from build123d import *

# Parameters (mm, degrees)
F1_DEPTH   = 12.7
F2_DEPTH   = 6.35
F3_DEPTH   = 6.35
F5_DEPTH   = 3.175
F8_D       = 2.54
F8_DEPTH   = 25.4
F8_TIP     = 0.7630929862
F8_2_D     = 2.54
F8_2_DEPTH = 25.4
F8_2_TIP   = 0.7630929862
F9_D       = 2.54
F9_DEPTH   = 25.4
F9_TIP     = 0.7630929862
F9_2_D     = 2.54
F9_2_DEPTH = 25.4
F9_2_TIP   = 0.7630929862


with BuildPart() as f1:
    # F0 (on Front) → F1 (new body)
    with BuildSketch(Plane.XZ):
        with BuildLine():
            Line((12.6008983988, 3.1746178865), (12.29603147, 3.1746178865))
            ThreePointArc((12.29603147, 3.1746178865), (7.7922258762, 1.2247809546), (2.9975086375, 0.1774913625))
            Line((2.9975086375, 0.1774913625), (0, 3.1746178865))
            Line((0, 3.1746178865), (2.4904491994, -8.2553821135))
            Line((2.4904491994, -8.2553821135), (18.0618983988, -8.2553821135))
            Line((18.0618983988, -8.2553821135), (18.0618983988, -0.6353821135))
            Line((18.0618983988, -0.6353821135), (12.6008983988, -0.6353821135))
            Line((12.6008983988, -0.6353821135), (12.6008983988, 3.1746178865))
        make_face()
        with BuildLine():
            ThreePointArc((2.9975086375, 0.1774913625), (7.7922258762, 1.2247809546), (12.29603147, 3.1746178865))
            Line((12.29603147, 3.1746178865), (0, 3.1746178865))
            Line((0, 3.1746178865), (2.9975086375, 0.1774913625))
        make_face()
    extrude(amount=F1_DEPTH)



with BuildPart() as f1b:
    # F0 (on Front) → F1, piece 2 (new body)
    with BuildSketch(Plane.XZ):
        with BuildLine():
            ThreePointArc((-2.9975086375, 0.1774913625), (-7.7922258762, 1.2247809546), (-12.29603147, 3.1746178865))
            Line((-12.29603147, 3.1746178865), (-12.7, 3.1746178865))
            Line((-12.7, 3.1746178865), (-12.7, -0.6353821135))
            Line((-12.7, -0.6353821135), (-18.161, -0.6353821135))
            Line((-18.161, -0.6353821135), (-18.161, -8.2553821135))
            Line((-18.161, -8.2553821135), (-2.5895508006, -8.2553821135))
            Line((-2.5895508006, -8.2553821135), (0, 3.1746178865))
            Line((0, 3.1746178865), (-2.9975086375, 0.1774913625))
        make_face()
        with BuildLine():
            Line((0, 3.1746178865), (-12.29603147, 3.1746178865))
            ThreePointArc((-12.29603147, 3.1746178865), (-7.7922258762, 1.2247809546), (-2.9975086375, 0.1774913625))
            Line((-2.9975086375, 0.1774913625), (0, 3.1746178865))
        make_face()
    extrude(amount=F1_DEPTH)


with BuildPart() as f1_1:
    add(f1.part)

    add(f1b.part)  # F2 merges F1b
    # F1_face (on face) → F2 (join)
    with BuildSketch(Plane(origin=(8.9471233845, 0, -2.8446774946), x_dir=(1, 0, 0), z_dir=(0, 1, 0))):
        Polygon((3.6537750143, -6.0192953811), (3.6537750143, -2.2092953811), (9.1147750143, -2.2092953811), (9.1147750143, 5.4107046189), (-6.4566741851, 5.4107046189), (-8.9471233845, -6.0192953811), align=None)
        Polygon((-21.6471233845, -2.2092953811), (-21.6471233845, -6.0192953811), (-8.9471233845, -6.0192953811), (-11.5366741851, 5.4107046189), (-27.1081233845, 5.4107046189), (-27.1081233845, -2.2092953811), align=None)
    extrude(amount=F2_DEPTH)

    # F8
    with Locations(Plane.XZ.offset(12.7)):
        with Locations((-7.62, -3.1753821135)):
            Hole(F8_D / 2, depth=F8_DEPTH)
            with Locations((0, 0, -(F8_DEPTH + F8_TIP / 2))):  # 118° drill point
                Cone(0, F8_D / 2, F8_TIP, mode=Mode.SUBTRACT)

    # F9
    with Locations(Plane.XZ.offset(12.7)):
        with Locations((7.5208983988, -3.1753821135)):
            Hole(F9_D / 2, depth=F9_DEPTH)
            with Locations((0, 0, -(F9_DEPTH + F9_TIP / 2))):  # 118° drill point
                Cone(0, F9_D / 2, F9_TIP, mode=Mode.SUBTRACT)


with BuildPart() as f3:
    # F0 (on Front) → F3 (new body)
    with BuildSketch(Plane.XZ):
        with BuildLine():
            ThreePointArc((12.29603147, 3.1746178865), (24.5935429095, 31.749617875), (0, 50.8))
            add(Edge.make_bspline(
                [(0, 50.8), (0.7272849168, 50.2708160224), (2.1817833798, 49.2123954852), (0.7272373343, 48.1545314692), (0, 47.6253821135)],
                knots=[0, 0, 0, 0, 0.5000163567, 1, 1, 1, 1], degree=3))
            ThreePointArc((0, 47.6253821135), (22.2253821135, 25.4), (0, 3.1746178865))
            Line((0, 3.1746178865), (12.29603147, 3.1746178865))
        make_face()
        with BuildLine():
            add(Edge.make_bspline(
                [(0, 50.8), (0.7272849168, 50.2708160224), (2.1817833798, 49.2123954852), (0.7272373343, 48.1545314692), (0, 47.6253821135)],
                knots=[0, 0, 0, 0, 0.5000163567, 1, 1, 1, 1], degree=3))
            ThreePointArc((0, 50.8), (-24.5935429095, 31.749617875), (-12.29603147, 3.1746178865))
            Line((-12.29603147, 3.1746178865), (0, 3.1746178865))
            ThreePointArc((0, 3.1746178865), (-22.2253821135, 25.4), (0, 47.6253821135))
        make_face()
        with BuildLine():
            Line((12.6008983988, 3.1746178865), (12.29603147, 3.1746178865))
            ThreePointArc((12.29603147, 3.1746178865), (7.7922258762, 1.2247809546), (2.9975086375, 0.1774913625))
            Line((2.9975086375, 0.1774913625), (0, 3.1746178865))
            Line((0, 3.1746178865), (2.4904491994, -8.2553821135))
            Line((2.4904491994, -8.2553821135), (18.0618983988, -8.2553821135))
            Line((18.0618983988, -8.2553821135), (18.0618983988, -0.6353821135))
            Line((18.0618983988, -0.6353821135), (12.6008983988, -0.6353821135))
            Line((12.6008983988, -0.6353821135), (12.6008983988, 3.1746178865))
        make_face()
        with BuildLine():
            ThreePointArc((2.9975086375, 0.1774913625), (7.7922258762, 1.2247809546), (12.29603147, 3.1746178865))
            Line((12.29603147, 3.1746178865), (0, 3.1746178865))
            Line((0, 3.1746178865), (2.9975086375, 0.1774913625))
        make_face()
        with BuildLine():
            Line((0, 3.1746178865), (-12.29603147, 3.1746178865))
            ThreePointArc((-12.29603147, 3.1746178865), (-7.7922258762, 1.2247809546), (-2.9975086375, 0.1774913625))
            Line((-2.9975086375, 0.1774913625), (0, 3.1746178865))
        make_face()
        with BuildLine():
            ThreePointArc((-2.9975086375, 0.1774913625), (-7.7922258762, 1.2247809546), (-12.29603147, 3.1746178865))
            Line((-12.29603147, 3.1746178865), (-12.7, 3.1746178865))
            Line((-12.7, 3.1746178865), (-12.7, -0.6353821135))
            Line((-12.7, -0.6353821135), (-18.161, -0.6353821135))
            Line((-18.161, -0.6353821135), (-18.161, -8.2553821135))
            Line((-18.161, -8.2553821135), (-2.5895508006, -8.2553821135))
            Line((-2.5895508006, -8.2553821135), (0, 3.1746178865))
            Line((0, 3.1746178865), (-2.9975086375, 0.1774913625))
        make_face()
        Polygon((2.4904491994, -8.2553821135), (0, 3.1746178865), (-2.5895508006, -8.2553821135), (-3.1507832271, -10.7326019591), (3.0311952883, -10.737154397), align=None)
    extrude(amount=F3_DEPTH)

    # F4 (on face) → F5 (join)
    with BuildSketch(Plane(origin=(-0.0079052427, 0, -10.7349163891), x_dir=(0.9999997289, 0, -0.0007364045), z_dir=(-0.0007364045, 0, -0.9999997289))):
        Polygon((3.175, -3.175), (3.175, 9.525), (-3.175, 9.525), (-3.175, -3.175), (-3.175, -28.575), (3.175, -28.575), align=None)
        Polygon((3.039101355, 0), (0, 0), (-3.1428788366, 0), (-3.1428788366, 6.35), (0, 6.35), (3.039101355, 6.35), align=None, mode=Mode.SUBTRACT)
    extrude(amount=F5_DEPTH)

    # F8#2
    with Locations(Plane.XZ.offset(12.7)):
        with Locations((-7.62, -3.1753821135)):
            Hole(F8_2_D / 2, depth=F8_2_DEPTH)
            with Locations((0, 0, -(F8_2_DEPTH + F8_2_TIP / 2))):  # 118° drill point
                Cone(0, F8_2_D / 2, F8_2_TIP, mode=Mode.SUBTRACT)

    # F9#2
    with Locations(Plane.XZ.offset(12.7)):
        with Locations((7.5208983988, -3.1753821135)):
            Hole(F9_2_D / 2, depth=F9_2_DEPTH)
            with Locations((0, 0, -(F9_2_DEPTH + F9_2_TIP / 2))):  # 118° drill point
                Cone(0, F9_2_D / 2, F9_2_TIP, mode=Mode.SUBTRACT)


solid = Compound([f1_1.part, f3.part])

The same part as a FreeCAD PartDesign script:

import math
import FreeCAD as App
import Part
import Sketcher
Q = App.Units.Quantity

doc = App.newDocument("Part")
params = doc.addObject("Spreadsheet::Sheet", "Params")
for row, (alias, value) in enumerate([
    ("sketch1_height", "0.3 in"),
    ("sketch1_height2", "0.15 in"),
    ("sketch1_width", "0.215 in"),
    ("pad1_length", "0.5 in"),
    ("sketch2_width", "0.5 in"),
    ("sketch2_height", "0.3 in"),
    ("sketch2_height2", "0.15 in"),
    ("sketch2_width2", "0.215 in"),
    ("pad2_length", "0.5 in"),
    ("sketch3_width", "0.5 in"),
    ("sketch3_height", "0.3 in"),
    ("sketch3_height2", "0.15 in"),
    ("sketch3_width2", "0.215 in"),
    ("pad3_length", "0.25 in"),
    ("sketch4_diameter", "0.1 in"),
    ("hole_diameter", "0.1 in"),
    ("hole_depth", "1 in"),
    ("sketch5_diameter", "0.1 in"),
    ("hole2_diameter", "0.1 in"),
    ("hole2_depth", "1 in"),
    ("sketch6_radius", "1 in"),
    ("sketch6_height", "0.3 in"),
    ("sketch6_length", "0.1 in"),
    ("sketch6_height2", "0.15 in"),
    ("sketch6_width", "0.215 in"),
    ("pad4_length", "0.25 in"),
    ("sketch7_height", "1.5 in"),
    ("sketch7_width", "0.25 in"),
    ("pad5_length", "0.125 in"),
    ("sketch8_diameter", "0.1 in"),
    ("hole3_diameter", "0.1 in"),
    ("hole3_depth", "1 in"),
    ("sketch9_diameter", "0.1 in"),
    ("hole4_diameter", "0.1 in"),
    ("hole4_depth", "1 in"),
], start=1):
    params.set(f"A{row}", alias)
    params.set(f"B{row}", "=" + value)
    params.setAlias(f"B{row}", alias)

body = doc.addObject("PartDesign::Body", "Body")

# Sketch on XZ plane
sketch1 = doc.addObject("Sketcher::SketchObject", "Sketch")
body.addObject(sketch1)
sketch1.AttachmentSupport = (doc.XZ_Plane, [""])
sketch1.MapMode = "FlatFace"
sketch1.addGeometry([
    Part.LineSegment(App.Vector(12.6, 3.2, 0), App.Vector(0, 3.2, 0)),  # 0
    Part.LineSegment(App.Vector(0, 3.2, 0), App.Vector(2.5, -8.3, 0)),  # 1
    Part.LineSegment(App.Vector(2.5, -8.3, 0), App.Vector(18.1, -8.3, 0)),  # 2
    Part.LineSegment(App.Vector(18.1, -8.3, 0), App.Vector(18.1, -0.6, 0)),  # 3
    Part.LineSegment(App.Vector(18.1, -0.6, 0), App.Vector(12.6, -0.6, 0)),  # 4
    Part.LineSegment(App.Vector(12.6, -0.6, 0), App.Vector(12.6, 3.2, 0)),  # 5
], False)
sketch1.addConstraint([
    Sketcher.Constraint("Coincident", 0, 2, 1, 1),
    Sketcher.Constraint("Coincident", 1, 2, 2, 1),
    Sketcher.Constraint("Coincident", 2, 2, 3, 1),
    Sketcher.Constraint("Coincident", 3, 2, 4, 1),
    Sketcher.Constraint("Coincident", 4, 2, 5, 1),
    Sketcher.Constraint("Coincident", 5, 2, 0, 1),
    Sketcher.Constraint("Horizontal", 0),
    Sketcher.Constraint("Horizontal", 2),
    Sketcher.Constraint("Vertical", 3),
    Sketcher.Constraint("Horizontal", 4),
    Sketcher.Constraint("Vertical", 5),
    Sketcher.Constraint("PointOnObject", 0, 2, -2),
    Sketcher.Constraint("DistanceY", 3, 1, 3, 2, Q("0.3 in")),
    Sketcher.Constraint("DistanceY", 5, 1, 5, 2, Q("0.15 in")),
    Sketcher.Constraint("DistanceX", 4, 2, 4, 1, Q("0.215 in")),
    Sketcher.Constraint("DistanceX", 0, 2, 0, 1, Q("12.600898 mm")),
    Sketcher.Constraint("DistanceX", 2, 1, 2, 2, Q("15.571449 mm")),
    Sketcher.Constraint("DistanceY", -1, 1, 0, 2, Q("3.174618 mm")),
])
sketch1.setExpression("Constraints[12]", "Params.sketch1_height")
sketch1.setExpression("Constraints[13]", "Params.sketch1_height2")
sketch1.setExpression("Constraints[14]", "Params.sketch1_width")
pad1 = doc.addObject("PartDesign::Pad", "Pad")
body.addObject(pad1)
pad1.Profile = sketch1
pad1.setExpression("Length", "Params.pad1_length")
body2 = doc.addObject("PartDesign::Body", "Body001")

# Sketch on XZ plane
sketch2 = doc.addObject("Sketcher::SketchObject", "Sketch001")
body2.addObject(sketch2)
sketch2.AttachmentSupport = (doc.getObject("XZ_Plane001"), [""])
sketch2.MapMode = "FlatFace"
sketch2.addGeometry([
    Part.LineSegment(App.Vector(-12.7, 3.2, 0), App.Vector(-12.7, -0.6, 0)),  # 0
    Part.LineSegment(App.Vector(-12.7, -0.6, 0), App.Vector(-18.2, -0.6, 0)),  # 1
    Part.LineSegment(App.Vector(-18.2, -0.6, 0), App.Vector(-18.2, -8.3, 0)),  # 2
    Part.LineSegment(App.Vector(-18.2, -8.3, 0), App.Vector(-2.6, -8.3, 0)),  # 3
    Part.LineSegment(App.Vector(-2.6, -8.3, 0), App.Vector(0, 3.2, 0)),  # 4
    Part.LineSegment(App.Vector(0, 3.2, 0), App.Vector(-12.7, 3.2, 0)),  # 5
], False)
sketch2.addConstraint([
    Sketcher.Constraint("Coincident", 0, 2, 1, 1),
    Sketcher.Constraint("Coincident", 1, 2, 2, 1),
    Sketcher.Constraint("Coincident", 2, 2, 3, 1),
    Sketcher.Constraint("Coincident", 3, 2, 4, 1),
    Sketcher.Constraint("Coincident", 4, 2, 5, 1),
    Sketcher.Constraint("Coincident", 5, 2, 0, 1),
    Sketcher.Constraint("Vertical", 0),
    Sketcher.Constraint("Horizontal", 1),
    Sketcher.Constraint("Vertical", 2),
    Sketcher.Constraint("Horizontal", 3),
    Sketcher.Constraint("Horizontal", 5),
    Sketcher.Constraint("PointOnObject", 4, 2, -2),
    Sketcher.Constraint("DistanceX", 5, 2, 5, 1, Q("0.5 in")),
    Sketcher.Constraint("DistanceY", 2, 2, 2, 1, Q("0.3 in")),
    Sketcher.Constraint("DistanceY", 0, 2, 0, 1, Q("0.15 in")),
    Sketcher.Constraint("DistanceX", 1, 2, 1, 1, Q("0.215 in")),
    Sketcher.Constraint("DistanceX", 3, 1, 3, 2, Q("15.571449 mm")),
    Sketcher.Constraint("DistanceY", 0, 2, -1, 1, Q("0.635382 mm")),
])
sketch2.setExpression("Constraints[12]", "Params.sketch2_width")
sketch2.setExpression("Constraints[13]", "Params.sketch2_height")
sketch2.setExpression("Constraints[14]", "Params.sketch2_height2")
sketch2.setExpression("Constraints[15]", "Params.sketch2_width2")
pad2 = doc.addObject("PartDesign::Pad", "Pad001")
body2.addObject(pad2)
pad2.Profile = sketch2
pad2.setExpression("Length", "Params.pad2_length")
body.AllowCompound = True
doc.recompute()

boolean = doc.addObject("PartDesign::Boolean", "Boolean")
body.addObject(boolean)
boolean.Type = "Fuse"
boolean.addObjects([body2])

# Sketch on XZ plane
sketch3 = doc.addObject("Sketcher::SketchObject", "Sketch002")
body.addObject(sketch3)
sketch3.AttachmentSupport = (doc.XZ_Plane, [""])
sketch3.MapMode = "FlatFace"
sketch3.addGeometry([
    Part.LineSegment(App.Vector(12.6, 3.2, 0), App.Vector(12.6, -0.6, 0)),  # 0
    Part.LineSegment(App.Vector(12.6, -0.6, 0), App.Vector(18.1, -0.6, 0)),  # 1
    Part.LineSegment(App.Vector(18.1, -0.6, 0), App.Vector(18.1, -8.3, 0)),  # 2
    Part.LineSegment(App.Vector(18.1, -8.3, 0), App.Vector(2.5, -8.3, 0)),  # 3
    Part.LineSegment(App.Vector(2.5, -8.3, 0), App.Vector(0, 3.2, 0)),  # 4
    Part.LineSegment(App.Vector(0, 3.2, 0), App.Vector(12.6, 3.2, 0)),  # 5
    Part.LineSegment(App.Vector(-12.7, -0.6, 0), App.Vector(-12.7, 3.2, 0)),  # 6
    Part.LineSegment(App.Vector(-12.7, 3.2, 0), App.Vector(0, 3.2, 0)),  # 7
    Part.LineSegment(App.Vector(0, 3.2, 0), App.Vector(-2.6, -8.3, 0)),  # 8
    Part.LineSegment(App.Vector(-2.6, -8.3, 0), App.Vector(-18.2, -8.3, 0)),  # 9
    Part.LineSegment(App.Vector(-18.2, -8.3, 0), App.Vector(-18.2, -0.6, 0)),  # 10
    Part.LineSegment(App.Vector(-18.2, -0.6, 0), App.Vector(-12.7, -0.6, 0)),  # 11
], False)
sketch3.addConstraint([
    Sketcher.Constraint("Coincident", 0, 2, 1, 1),
    Sketcher.Constraint("Coincident", 1, 2, 2, 1),
    Sketcher.Constraint("Coincident", 2, 2, 3, 1),
    Sketcher.Constraint("Coincident", 3, 2, 4, 1),
    Sketcher.Constraint("Coincident", 4, 2, 5, 1),
    Sketcher.Constraint("Coincident", 5, 2, 0, 1),
    Sketcher.Constraint("Coincident", 6, 2, 7, 1),
    Sketcher.Constraint("Coincident", 7, 2, 8, 1),
    Sketcher.Constraint("Coincident", 8, 2, 9, 1),
    Sketcher.Constraint("Coincident", 9, 2, 10, 1),
    Sketcher.Constraint("Coincident", 10, 2, 11, 1),
    Sketcher.Constraint("Coincident", 11, 2, 6, 1),
    Sketcher.Constraint("Vertical", 0),
    Sketcher.Constraint("Horizontal", 1),
    Sketcher.Constraint("Vertical", 2),
    Sketcher.Constraint("Horizontal", 3),
    Sketcher.Constraint("Horizontal", 5),
    Sketcher.Constraint("Vertical", 6),
    Sketcher.Constraint("Horizontal", 7),
    Sketcher.Constraint("Horizontal", 9),
    Sketcher.Constraint("Vertical", 10),
    Sketcher.Constraint("Horizontal", 11),
    Sketcher.Constraint("Coincident", 7, 2, 4, 2),
    Sketcher.Constraint("PointOnObject", 4, 2, -2),
    Sketcher.Constraint("Horizontal", 3, 2, 8, 2),
    Sketcher.Constraint("Horizontal", 1, 2, 10, 2),
    Sketcher.Constraint("Equal", 3, 9),
    Sketcher.Constraint("Equal", 1, 11),
    Sketcher.Constraint("DistanceX", 7, 1, 7, 2, Q("0.5 in")),
    Sketcher.Constraint("DistanceY", 2, 2, 2, 1, Q("0.3 in")),
    Sketcher.Constraint("DistanceY", 0, 2, 0, 1, Q("0.15 in")),
    Sketcher.Constraint("DistanceX", 8, 2, 3, 2, Q("0.2 in")),
    Sketcher.Constraint("DistanceX", 1, 1, 1, 2, Q("0.215 in")),
    Sketcher.Constraint("DistanceX", 5, 1, 5, 2, Q("12.600898 mm")),
    Sketcher.Constraint("DistanceY", 0, 2, -1, 1, Q("0.635382 mm")),
])
sketch3.setExpression("Constraints[28]", "Params.sketch3_width")
sketch3.setExpression("Constraints[29]", "Params.sketch3_height")
sketch3.setExpression("Constraints[30]", "Params.sketch3_height2")
sketch3.setExpression("Constraints[32]", "Params.sketch3_width2")
pad3 = doc.addObject("PartDesign::Pad", "Pad002")
body.addObject(pad3)
pad3.Profile = sketch3
pad3.setExpression("Length", "Params.pad3_length")
pad3.Reversed = True

# Sketch on XZ plane
sketch4 = doc.addObject("Sketcher::SketchObject", "Sketch003")
body.addObject(sketch4)
sketch4.AttachmentSupport = (doc.XZ_Plane, [""])
sketch4.MapMode = "FlatFace"
sketch4.AttachmentOffset = App.Placement(App.Vector(0, 0, 0.5 * 25.4), App.Rotation())
sketch4.addGeometry(Part.Circle(App.Vector(-7.6, -3.2, 0), App.Vector(0, 0, 1), 1.3), False)
sketch4.addConstraint([
    Sketcher.Constraint("Diameter", 0, Q("0.1 in")),
    Sketcher.Constraint("DistanceX", 0, 3, -1, 1, Q("0.3 in")),
    Sketcher.Constraint("DistanceY", 0, 3, -1, 1, Q("3.175382 mm")),
])
sketch4.setExpression("Constraints[0]", "Params.sketch4_diameter")
doc.recompute()
hole = doc.addObject("PartDesign::Hole", "Hole")
body.addObject(hole)
hole.Profile = sketch4
hole.ThreadType = "None"
hole.setExpression("Diameter", "Params.hole_diameter")
hole.DepthType = "Dimension"
hole.setExpression("Depth", "Params.hole_depth")
hole.DrillPoint = "Angled"
hole.DrillPointAngle = 118

# Sketch on XZ plane
sketch5 = doc.addObject("Sketcher::SketchObject", "Sketch004")
body.addObject(sketch5)
sketch5.AttachmentSupport = (doc.XZ_Plane, [""])
sketch5.MapMode = "FlatFace"
sketch5.AttachmentOffset = App.Placement(App.Vector(0, 0, 0.5 * 25.4), App.Rotation())
sketch5.addGeometry(Part.Circle(App.Vector(7.5, -3.2, 0), App.Vector(0, 0, 1), 1.3), False)
sketch5.addConstraint([
    Sketcher.Constraint("Diameter", 0, Q("0.1 in")),
    Sketcher.Constraint("DistanceX", -1, 1, 0, 3, Q("7.520898 mm")),
    Sketcher.Constraint("DistanceY", 0, 3, -1, 1, Q("3.175382 mm")),
])
sketch5.setExpression("Constraints[0]", "Params.sketch5_diameter")
doc.recompute()
hole2 = doc.addObject("PartDesign::Hole", "Hole001")
body.addObject(hole2)
hole2.Profile = sketch5
hole2.ThreadType = "None"
hole2.setExpression("Diameter", "Params.hole2_diameter")
hole2.DepthType = "Dimension"
hole2.setExpression("Depth", "Params.hole2_depth")
hole2.DrillPoint = "Angled"
hole2.DrillPointAngle = 118
body3 = doc.addObject("PartDesign::Body", "Body002")
body3.AllowCompound = True

# Sketch on XZ plane
sketch6 = doc.addObject("Sketcher::SketchObject", "Sketch005")
body3.addObject(sketch6)
sketch6.AttachmentSupport = (doc.getObject("XZ_Plane002"), [""])
sketch6.MapMode = "FlatFace"
sketch6.addGeometry([
    Part.LineSegment(App.Vector(-18.16, -8.26, 0), App.Vector(-2.59, -8.26, 0)),  # 0
    Part.LineSegment(App.Vector(-2.59, -8.26, 0), App.Vector(-3.15, -10.73, 0)),  # 1
    Part.LineSegment(App.Vector(-3.15, -10.73, 0), App.Vector(3.03, -10.74, 0)),  # 2
    Part.LineSegment(App.Vector(3.03, -10.74, 0), App.Vector(2.49, -8.26, 0)),  # 3
    Part.LineSegment(App.Vector(2.49, -8.26, 0), App.Vector(18.06, -8.26, 0)),  # 4
    Part.LineSegment(App.Vector(18.06, -8.26, 0), App.Vector(18.06, -0.64, 0)),  # 5
    Part.LineSegment(App.Vector(18.06, -0.64, 0), App.Vector(12.6, -0.64, 0)),  # 6
    Part.LineSegment(App.Vector(12.6, -0.64, 0), App.Vector(12.6, 3.17, 0)),  # 7
    Part.LineSegment(App.Vector(12.6, 3.17, 0), App.Vector(12.3, 3.17, 0)),  # 8
    Part.ArcOfCircle(Part.Circle(App.Vector(0, 25.4, 0), App.Vector(0, 0, 1), 25.4), math.radians(-61), math.radians(90)),  # 9
    Part.ArcOfCircle(Part.Circle(App.Vector(0, 25.4, 0), App.Vector(0, 0, 1), 25.4), math.radians(90), math.radians(241)),  # 10
    Part.LineSegment(App.Vector(-12.3, 3.17, 0), App.Vector(-12.7, 3.17, 0)),  # 11
    Part.LineSegment(App.Vector(-12.7, 3.17, 0), App.Vector(-12.7, -0.64, 0)),  # 12
    Part.LineSegment(App.Vector(-12.7, -0.64, 0), App.Vector(-18.16, -0.64, 0)),  # 13
    Part.LineSegment(App.Vector(-18.16, -0.64, 0), App.Vector(-18.16, -8.26, 0)),  # 14
    Part.Circle(App.Vector(0, 25.4, 0), App.Vector(0, 0, 1), 22.23),  # 15
], False)
sketch6.addConstraint([
    Sketcher.Constraint("Coincident", 0, 2, 1, 1),
    Sketcher.Constraint("Coincident", 1, 2, 2, 1),
    Sketcher.Constraint("Coincident", 2, 2, 3, 1),
    Sketcher.Constraint("Coincident", 3, 2, 4, 1),
    Sketcher.Constraint("Coincident", 4, 2, 5, 1),
    Sketcher.Constraint("Coincident", 5, 2, 6, 1),
    Sketcher.Constraint("Coincident", 6, 2, 7, 1),
    Sketcher.Constraint("Coincident", 7, 2, 8, 1),
    Sketcher.Constraint("Coincident", 8, 2, 9, 1),
    Sketcher.Constraint("Tangent", 9, 2, 10, 1),
    Sketcher.Constraint("Coincident", 10, 2, 11, 1),
    Sketcher.Constraint("Coincident", 11, 2, 12, 1),
    Sketcher.Constraint("Coincident", 12, 2, 13, 1),
    Sketcher.Constraint("Coincident", 13, 2, 14, 1),
    Sketcher.Constraint("Coincident", 14, 2, 0, 1),
    Sketcher.Constraint("Horizontal", 0),
    Sketcher.Constraint("Horizontal", 4),
    Sketcher.Constraint("Vertical", 5),
    Sketcher.Constraint("Horizontal", 6),
    Sketcher.Constraint("Vertical", 7),
    Sketcher.Constraint("Horizontal", 8),
    Sketcher.Constraint("Horizontal", 11),
    Sketcher.Constraint("Vertical", 12),
    Sketcher.Constraint("Horizontal", 13),
    Sketcher.Constraint("Vertical", 14),
    Sketcher.Constraint("Coincident", 15, 3, 9, 3),
    Sketcher.Constraint("Equal", 9, 10),
    Sketcher.Constraint("Symmetric", 8, 2, 10, 2, -2),
    Sketcher.Constraint("PointOnObject", 9, 2, -2),
    Sketcher.Constraint("Horizontal", 0, 2, 3, 2),
    Sketcher.Constraint("Horizontal", 6, 2, 12, 2),
    Sketcher.Constraint("Equal", 0, 4),
    Sketcher.Constraint("Equal", 6, 13),
    Sketcher.Constraint("Equal", 1, 3),
    Sketcher.Constraint("Radius", 9, Q("1 in")),
    Sketcher.Constraint("DistanceY", 5, 1, 5, 2, Q("0.3 in")),
    Sketcher.Constraint("DistanceY", -1, 1, 9, 3, Q("1 in")),
    Sketcher.Constraint("Distance", 1, Q("0.1 in")),
    Sketcher.Constraint("DistanceY", 7, 1, 7, 2, Q("0.15 in")),
    Sketcher.Constraint("DistanceX", 11, 2, -1, 1, Q("0.5 in")),
    Sketcher.Constraint("DistanceX", 0, 2, 3, 2, Q("0.2 in")),
    Sketcher.Constraint("DistanceX", 6, 2, 6, 1, Q("0.215 in")),
    Sketcher.Constraint("Diameter", 15, Q("44.450764 mm")),
    Sketcher.Constraint("DistanceX", 0, 1, 0, 2, Q("15.571449 mm")),
    Sketcher.Constraint("DistanceX", 11, 2, 11, 1, Q("0.403969 mm")),
    Sketcher.Constraint("DistanceY", 1, 2, -1, 1, Q("10.732602 mm")),
    Sketcher.Constraint("Distance", 2, Q("6.18198 mm")),
])
sketch6.setExpression("Constraints[34]", "Params.sketch6_radius")
sketch6.setExpression("Constraints[35]", "Params.sketch6_height")
sketch6.setExpression("Constraints[37]", "Params.sketch6_length")
sketch6.setExpression("Constraints[38]", "Params.sketch6_height2")
sketch6.setExpression("Constraints[41]", "Params.sketch6_width")
pad4 = doc.addObject("PartDesign::Pad", "Pad003")
body3.addObject(pad4)
pad4.Profile = sketch6
pad4.setExpression("Length", "Params.pad4_length")

# Sketch on an angled plane
sketch7 = doc.addObject("Sketcher::SketchObject", "Sketch006")
body3.addObject(sketch7)
sketch7.Placement = App.Placement(App.Vector(-0.007905, 0, -10.734916), App.Rotation(App.Vector(0.999999729, 0, -0.000736404), App.Vector(0, -1, 0), App.Vector(-0.000736404, 0, -0.999999729), "ZXY"))
sketch7.addGeometry([
    Part.LineSegment(App.Vector(3, 10, 0), App.Vector(-3, 10, 0)),  # 0
    Part.LineSegment(App.Vector(-3, 10, 0), App.Vector(-3, -29, 0)),  # 1
    Part.LineSegment(App.Vector(-3, -29, 0), App.Vector(3, -29, 0)),  # 2
    Part.LineSegment(App.Vector(3, -29, 0), App.Vector(3, 10, 0)),  # 3
    Part.LineSegment(App.Vector(3, 6, 0), App.Vector(3, 0, 0)),  # 4
    Part.LineSegment(App.Vector(3, 0, 0), App.Vector(-3, 0, 0)),  # 5
    Part.LineSegment(App.Vector(-3, 0, 0), App.Vector(-3, 6, 0)),  # 6
    Part.LineSegment(App.Vector(-3, 6, 0), App.Vector(3, 6, 0)),  # 7
], False)
sketch7.addConstraint([
    Sketcher.Constraint("Coincident", 0, 2, 1, 1),
    Sketcher.Constraint("Coincident", 1, 2, 2, 1),
    Sketcher.Constraint("Coincident", 2, 2, 3, 1),
    Sketcher.Constraint("Coincident", 3, 2, 0, 1),
    Sketcher.Constraint("Coincident", 4, 2, 5, 1),
    Sketcher.Constraint("Coincident", 5, 2, 6, 1),
    Sketcher.Constraint("Coincident", 6, 2, 7, 1),
    Sketcher.Constraint("Coincident", 7, 2, 4, 1),
    Sketcher.Constraint("Horizontal", 0),
    Sketcher.Constraint("Vertical", 1),
    Sketcher.Constraint("Horizontal", 2),
    Sketcher.Constraint("Vertical", 3),
    Sketcher.Constraint("Vertical", 4),
    Sketcher.Constraint("Horizontal", 5),
    Sketcher.Constraint("Vertical", 6),
    Sketcher.Constraint("Horizontal", 7),
    Sketcher.Constraint("PointOnObject", 4, 2, -1),
    Sketcher.Constraint("Equal", 2, 4),
    Sketcher.Constraint("DistanceY", 1, 2, 1, 1, Q("1.5 in")),
    Sketcher.Constraint("DistanceX", 0, 2, 0, 1, Q("0.25 in")),
    Sketcher.Constraint("DistanceX", 0, 2, -1, 1, Q("0.125 in")),
    Sketcher.Constraint("DistanceY", -1, 1, 0, 2, Q("0.375 in")),
    Sketcher.Constraint("DistanceX", 5, 2, 5, 1, Q("6.18198 mm")),
    Sketcher.Constraint("DistanceX", -1, 1, 4, 2, Q("3.039101 mm")),
])
sketch7.setExpression("Constraints[18]", "Params.sketch7_height")
sketch7.setExpression("Constraints[19]", "Params.sketch7_width")
pad5 = doc.addObject("PartDesign::Pad", "Pad004")
body3.addObject(pad5)
pad5.Profile = sketch7
pad5.setExpression("Length", "Params.pad5_length")

# Sketch on XZ plane
sketch8 = doc.addObject("Sketcher::SketchObject", "Sketch007")
body3.addObject(sketch8)
sketch8.AttachmentSupport = (doc.getObject("XZ_Plane002"), [""])
sketch8.MapMode = "FlatFace"
sketch8.AttachmentOffset = App.Placement(App.Vector(0, 0, 0.5 * 25.4), App.Rotation())
sketch8.addGeometry(Part.Circle(App.Vector(-7.6, -3.2, 0), App.Vector(0, 0, 1), 1.3), False)
sketch8.addConstraint([
    Sketcher.Constraint("Diameter", 0, Q("0.1 in")),
    Sketcher.Constraint("DistanceX", 0, 3, -1, 1, Q("0.3 in")),
    Sketcher.Constraint("DistanceY", 0, 3, -1, 1, Q("3.175382 mm")),
])
sketch8.setExpression("Constraints[0]", "Params.sketch8_diameter")
doc.recompute()
hole3 = doc.addObject("PartDesign::Hole", "Hole002")
body3.addObject(hole3)
hole3.Profile = sketch8
hole3.ThreadType = "None"
hole3.setExpression("Diameter", "Params.hole3_diameter")
hole3.DepthType = "Dimension"
hole3.setExpression("Depth", "Params.hole3_depth")
hole3.DrillPoint = "Angled"
hole3.DrillPointAngle = 118

# Sketch on XZ plane
sketch9 = doc.addObject("Sketcher::SketchObject", "Sketch008")
body3.addObject(sketch9)
sketch9.AttachmentSupport = (doc.getObject("XZ_Plane002"), [""])
sketch9.MapMode = "FlatFace"
sketch9.AttachmentOffset = App.Placement(App.Vector(0, 0, 0.5 * 25.4), App.Rotation())
sketch9.addGeometry(Part.Circle(App.Vector(7.5, -3.2, 0), App.Vector(0, 0, 1), 1.3), False)
sketch9.addConstraint([
    Sketcher.Constraint("Diameter", 0, Q("0.1 in")),
    Sketcher.Constraint("DistanceX", -1, 1, 0, 3, Q("7.520898 mm")),
    Sketcher.Constraint("DistanceY", 0, 3, -1, 1, Q("3.175382 mm")),
])
sketch9.setExpression("Constraints[0]", "Params.sketch9_diameter")
doc.recompute()
hole4 = doc.addObject("PartDesign::Hole", "Hole003")
body3.addObject(hole4)
hole4.Profile = sketch9
hole4.ThreadType = "None"
hole4.setExpression("Diameter", "Params.hole4_diameter")
hole4.DepthType = "Dimension"
hole4.setExpression("Depth", "Params.hole4_depth")
hole4.DrillPoint = "Angled"
hole4.DrillPointAngle = 118

doc.recompute()
